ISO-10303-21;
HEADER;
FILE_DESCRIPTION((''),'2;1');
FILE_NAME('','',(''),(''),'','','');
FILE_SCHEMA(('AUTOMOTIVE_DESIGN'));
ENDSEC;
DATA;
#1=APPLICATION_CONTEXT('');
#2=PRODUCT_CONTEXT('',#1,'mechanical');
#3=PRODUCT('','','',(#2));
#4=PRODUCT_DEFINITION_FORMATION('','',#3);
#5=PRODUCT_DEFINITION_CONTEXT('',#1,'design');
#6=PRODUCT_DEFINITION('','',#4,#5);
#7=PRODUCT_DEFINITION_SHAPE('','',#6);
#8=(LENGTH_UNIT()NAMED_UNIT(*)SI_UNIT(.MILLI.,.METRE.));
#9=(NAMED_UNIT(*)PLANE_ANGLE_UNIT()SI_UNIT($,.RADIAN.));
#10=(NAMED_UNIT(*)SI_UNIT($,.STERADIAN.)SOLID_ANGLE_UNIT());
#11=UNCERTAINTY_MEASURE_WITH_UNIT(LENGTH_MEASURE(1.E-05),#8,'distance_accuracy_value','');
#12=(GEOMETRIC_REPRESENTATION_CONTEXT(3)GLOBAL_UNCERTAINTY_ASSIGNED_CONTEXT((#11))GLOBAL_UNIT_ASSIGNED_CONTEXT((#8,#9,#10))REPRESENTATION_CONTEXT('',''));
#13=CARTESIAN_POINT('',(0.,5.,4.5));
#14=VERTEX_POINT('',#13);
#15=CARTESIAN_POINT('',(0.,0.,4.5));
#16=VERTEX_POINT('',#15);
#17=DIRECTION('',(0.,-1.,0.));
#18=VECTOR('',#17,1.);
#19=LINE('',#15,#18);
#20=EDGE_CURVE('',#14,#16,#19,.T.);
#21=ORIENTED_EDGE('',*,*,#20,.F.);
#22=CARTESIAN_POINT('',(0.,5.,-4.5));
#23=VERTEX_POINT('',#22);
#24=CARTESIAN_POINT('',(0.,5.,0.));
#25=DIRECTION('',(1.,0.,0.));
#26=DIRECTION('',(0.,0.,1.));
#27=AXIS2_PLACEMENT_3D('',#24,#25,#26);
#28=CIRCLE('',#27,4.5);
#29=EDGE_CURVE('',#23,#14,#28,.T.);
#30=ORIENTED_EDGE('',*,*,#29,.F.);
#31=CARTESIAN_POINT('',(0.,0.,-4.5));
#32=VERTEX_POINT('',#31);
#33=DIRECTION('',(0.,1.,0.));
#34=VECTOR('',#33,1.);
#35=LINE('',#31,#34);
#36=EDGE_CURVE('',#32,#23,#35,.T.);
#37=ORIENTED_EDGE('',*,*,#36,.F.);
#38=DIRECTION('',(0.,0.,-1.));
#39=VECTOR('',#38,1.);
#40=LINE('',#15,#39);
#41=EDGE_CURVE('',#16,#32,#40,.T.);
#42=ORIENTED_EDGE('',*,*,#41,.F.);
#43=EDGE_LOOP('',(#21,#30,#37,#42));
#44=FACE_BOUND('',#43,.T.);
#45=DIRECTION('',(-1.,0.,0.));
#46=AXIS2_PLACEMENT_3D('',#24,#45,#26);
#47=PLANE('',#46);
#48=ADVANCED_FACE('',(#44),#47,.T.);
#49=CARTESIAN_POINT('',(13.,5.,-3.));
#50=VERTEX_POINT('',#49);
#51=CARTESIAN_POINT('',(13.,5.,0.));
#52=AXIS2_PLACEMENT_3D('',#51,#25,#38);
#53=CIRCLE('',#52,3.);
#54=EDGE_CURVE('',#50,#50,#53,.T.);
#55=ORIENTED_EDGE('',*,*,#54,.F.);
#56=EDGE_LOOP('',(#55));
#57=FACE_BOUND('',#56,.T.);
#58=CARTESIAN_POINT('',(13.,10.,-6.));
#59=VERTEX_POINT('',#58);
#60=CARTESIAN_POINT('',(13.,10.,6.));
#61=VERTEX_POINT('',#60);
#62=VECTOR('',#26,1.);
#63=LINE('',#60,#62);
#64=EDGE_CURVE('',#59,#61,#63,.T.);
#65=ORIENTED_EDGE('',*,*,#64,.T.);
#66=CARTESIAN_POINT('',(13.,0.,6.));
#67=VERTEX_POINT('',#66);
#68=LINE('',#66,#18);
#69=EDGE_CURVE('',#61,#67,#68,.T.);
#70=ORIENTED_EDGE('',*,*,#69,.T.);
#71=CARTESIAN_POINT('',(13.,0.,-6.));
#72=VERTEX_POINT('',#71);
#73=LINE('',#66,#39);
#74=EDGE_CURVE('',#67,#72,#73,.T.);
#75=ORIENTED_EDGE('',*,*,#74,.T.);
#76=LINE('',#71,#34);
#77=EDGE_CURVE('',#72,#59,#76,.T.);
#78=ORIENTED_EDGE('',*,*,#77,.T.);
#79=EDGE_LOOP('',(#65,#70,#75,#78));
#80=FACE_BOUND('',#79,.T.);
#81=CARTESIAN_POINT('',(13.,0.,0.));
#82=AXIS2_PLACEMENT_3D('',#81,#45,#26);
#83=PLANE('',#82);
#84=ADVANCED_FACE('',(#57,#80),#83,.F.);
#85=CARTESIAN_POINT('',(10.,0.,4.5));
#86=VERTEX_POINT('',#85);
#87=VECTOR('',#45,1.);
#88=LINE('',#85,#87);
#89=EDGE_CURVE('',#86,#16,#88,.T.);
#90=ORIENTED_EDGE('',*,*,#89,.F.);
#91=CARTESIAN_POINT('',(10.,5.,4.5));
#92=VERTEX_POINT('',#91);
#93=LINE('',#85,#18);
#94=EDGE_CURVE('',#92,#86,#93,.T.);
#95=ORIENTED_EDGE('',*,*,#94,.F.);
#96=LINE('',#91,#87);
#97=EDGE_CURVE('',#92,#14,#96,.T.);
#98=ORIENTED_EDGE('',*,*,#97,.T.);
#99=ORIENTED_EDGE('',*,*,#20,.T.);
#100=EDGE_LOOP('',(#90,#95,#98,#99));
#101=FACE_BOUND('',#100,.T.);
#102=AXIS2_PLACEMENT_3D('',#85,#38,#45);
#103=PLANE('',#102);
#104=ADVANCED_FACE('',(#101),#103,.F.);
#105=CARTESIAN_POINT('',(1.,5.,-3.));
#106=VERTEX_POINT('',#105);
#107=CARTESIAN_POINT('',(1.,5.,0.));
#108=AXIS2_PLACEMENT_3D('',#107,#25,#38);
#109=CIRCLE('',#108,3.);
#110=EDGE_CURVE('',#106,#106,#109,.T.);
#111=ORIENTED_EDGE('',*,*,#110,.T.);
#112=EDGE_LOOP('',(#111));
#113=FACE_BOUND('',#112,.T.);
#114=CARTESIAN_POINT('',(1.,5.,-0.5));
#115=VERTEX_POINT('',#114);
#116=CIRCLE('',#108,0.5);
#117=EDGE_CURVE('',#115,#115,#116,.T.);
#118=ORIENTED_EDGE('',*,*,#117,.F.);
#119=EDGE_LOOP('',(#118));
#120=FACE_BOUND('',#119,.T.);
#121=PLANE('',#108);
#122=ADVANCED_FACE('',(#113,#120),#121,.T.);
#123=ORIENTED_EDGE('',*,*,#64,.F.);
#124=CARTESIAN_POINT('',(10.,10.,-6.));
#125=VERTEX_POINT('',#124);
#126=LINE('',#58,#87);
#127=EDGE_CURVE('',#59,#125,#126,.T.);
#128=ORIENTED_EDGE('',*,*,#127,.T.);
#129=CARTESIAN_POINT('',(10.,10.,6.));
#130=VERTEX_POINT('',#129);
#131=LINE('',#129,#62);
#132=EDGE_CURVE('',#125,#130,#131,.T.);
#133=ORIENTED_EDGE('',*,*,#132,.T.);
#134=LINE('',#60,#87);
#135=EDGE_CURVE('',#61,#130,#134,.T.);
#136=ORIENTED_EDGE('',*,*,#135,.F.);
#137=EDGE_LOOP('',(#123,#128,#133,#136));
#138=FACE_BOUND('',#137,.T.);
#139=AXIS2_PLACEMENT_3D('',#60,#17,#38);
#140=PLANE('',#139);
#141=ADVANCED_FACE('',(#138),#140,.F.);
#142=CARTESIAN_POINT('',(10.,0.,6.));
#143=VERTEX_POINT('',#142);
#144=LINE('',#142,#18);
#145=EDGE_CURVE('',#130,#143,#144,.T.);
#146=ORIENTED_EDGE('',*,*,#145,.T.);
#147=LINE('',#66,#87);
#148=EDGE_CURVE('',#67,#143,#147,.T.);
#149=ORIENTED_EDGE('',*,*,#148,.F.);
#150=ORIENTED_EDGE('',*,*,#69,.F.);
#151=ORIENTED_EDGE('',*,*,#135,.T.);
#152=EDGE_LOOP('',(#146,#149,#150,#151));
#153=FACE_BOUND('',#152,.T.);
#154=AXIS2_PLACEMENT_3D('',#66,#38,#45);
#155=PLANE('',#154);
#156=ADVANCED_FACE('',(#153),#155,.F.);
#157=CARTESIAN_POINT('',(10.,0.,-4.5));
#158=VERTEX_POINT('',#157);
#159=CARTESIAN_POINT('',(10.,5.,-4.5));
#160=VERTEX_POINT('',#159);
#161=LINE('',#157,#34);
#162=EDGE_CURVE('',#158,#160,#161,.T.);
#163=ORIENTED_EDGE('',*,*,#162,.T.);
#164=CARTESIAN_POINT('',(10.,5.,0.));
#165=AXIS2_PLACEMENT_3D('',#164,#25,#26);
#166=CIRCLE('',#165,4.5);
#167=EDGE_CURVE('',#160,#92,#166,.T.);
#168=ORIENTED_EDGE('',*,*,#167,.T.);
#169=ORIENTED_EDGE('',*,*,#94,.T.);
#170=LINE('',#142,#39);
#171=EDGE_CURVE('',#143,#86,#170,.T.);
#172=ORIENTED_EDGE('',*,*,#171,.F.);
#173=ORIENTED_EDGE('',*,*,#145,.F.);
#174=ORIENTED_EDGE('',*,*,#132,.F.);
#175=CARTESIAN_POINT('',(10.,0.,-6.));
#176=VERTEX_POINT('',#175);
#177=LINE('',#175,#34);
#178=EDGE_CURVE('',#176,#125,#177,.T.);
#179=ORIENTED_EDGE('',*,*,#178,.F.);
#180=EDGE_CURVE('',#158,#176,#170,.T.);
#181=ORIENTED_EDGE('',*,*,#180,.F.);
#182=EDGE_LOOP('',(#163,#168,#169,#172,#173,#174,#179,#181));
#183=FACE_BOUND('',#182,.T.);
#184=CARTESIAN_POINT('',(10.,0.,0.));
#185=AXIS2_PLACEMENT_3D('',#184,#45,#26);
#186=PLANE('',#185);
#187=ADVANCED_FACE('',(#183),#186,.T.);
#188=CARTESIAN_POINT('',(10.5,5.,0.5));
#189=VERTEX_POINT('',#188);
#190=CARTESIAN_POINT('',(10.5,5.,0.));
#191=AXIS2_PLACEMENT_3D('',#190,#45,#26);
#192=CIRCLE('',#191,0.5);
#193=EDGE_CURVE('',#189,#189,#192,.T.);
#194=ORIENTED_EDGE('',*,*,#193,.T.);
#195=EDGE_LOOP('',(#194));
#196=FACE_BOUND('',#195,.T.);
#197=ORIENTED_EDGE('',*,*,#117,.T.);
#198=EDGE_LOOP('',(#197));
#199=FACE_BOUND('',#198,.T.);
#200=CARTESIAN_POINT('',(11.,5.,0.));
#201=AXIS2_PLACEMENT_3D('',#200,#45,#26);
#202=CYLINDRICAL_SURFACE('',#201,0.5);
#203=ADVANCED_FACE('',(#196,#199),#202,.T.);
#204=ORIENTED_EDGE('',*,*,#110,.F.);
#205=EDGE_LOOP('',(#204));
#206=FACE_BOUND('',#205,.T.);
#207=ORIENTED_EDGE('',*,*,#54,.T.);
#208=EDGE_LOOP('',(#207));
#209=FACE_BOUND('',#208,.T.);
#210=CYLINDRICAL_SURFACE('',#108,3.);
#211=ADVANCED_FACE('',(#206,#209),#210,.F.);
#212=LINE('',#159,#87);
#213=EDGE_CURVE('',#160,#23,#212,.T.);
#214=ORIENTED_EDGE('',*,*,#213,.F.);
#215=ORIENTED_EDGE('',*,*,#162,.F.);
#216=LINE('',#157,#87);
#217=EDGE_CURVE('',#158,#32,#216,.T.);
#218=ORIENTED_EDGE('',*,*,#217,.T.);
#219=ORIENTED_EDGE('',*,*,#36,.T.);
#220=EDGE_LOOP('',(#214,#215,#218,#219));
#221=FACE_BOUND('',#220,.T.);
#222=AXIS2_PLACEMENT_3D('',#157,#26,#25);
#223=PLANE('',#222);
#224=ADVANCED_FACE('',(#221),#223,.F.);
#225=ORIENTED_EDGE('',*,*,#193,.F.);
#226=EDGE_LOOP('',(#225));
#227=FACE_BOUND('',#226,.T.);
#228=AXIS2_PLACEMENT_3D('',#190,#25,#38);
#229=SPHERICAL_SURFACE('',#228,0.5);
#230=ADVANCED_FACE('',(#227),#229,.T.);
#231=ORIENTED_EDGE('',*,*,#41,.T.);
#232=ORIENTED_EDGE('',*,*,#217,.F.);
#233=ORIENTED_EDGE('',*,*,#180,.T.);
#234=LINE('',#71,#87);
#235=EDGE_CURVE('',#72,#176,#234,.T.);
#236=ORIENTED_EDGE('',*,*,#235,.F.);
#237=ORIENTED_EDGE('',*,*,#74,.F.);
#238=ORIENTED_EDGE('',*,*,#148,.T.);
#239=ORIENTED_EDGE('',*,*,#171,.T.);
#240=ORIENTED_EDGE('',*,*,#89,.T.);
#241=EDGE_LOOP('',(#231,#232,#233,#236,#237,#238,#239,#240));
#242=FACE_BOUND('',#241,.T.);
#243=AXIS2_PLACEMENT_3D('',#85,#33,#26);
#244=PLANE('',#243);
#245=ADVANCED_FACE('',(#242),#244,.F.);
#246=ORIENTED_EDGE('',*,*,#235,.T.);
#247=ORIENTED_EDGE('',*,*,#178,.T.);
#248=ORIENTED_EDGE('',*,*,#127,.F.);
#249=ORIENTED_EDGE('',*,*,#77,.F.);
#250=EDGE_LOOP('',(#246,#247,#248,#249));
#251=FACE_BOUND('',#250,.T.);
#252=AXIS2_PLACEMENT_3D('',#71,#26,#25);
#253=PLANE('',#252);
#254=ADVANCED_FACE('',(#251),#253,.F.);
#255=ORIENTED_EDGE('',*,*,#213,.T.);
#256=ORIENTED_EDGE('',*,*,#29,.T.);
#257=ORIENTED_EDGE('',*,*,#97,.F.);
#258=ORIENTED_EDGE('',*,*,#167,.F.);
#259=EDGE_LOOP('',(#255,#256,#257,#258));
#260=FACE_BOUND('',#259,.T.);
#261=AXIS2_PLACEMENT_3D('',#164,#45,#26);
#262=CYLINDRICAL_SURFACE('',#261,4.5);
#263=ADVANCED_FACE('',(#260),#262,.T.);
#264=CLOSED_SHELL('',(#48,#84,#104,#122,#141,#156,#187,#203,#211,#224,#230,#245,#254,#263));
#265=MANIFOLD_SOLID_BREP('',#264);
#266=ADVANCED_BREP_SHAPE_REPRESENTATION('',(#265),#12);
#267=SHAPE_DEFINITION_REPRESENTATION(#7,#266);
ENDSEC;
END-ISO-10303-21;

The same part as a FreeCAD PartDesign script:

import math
import FreeCAD as App
import Part
import Sketcher

V = App.Vector
Q = App.Units.Quantity


def edges_at(feature, points):
    """Names of the edges that pass closest to the given points."""
    edges = feature.Shape.Edges
    near = lambda p: min(range(len(edges)), key=lambda i: edges[i].distToShape(Part.Vertex(*p))[0])
    return sorted({f"Edge{near(p) + 1}" for p in points})

doc = App.newDocument("Part")
body = doc.addObject("PartDesign::Body", "Body")

sketch1 = body.newObject("Sketcher::SketchObject", "Sketch")
sketch1.AttachmentSupport = (doc.getObject("YZ_Plane"), [""])
sketch1.MapMode = "FlatFace"
sketch1.addGeometry([
    Part.LineSegment(V(0, 4.5, 0), V(0, -4.5, 0)),
    Part.LineSegment(V(0, -4.5, 0), V(5, -4.5, 0)),
    Part.ArcOfCircle(Part.Circle(V(5, 0, 0), V(0, 0, 1), 4.5), math.radians(-90), math.radians(90)),
    Part.LineSegment(V(5, 4.5, 0), V(0, 4.5, 0)),
], False)
sketch1.addConstraint([
    Sketcher.Constraint("Coincident", 0, 2, 1, 1),
    Sketcher.Constraint("Tangent", 1, 2, 2, 1),
    Sketcher.Constraint("Tangent", 2, 2, 3, 1),
    Sketcher.Constraint("Coincident", 3, 2, 0, 1),
    Sketcher.Constraint("Vertical", 0),
    Sketcher.Constraint("Horizontal", 1),
    Sketcher.Constraint("Horizontal", 3),
    Sketcher.Constraint("Symmetric", 0, 2, 3, 2, -1, 1),
    Sketcher.Constraint("Radius", 2, Q("4.5 mm")),
    Sketcher.Constraint("DistanceX", 1, 1, 1, 2, Q("5 mm")),
])
pad1 = body.newObject("PartDesign::Pad", "Pad")
pad1.Profile = sketch1
pad1.Length = 10

sketch2 = body.newObject("Sketcher::SketchObject", "Sketch001")
sketch2.AttachmentSupport = (doc.getObject("YZ_Plane"), [""])
sketch2.MapMode = "FlatFace"
sketch2.AttachmentOffset = App.Placement(V(0, 0, 10), App.Rotation())
sketch2.addGeometry([
    Part.LineSegment(V(10, 6, 0), V(0, 6, 0)),
    Part.LineSegment(V(0, 6, 0), V(0, -6, 0)),
    Part.LineSegment(V(0, -6, 0), V(10, -6, 0)),
    Part.LineSegment(V(10, -6, 0), V(10, 6, 0)),
], False)
sketch2.addConstraint([
    Sketcher.Constraint("Coincident", 0, 2, 1, 1),
    Sketcher.Constraint("Coincident", 1, 2, 2, 1),
    Sketcher.Constraint("Coincident", 2, 2, 3, 1),
    Sketcher.Constraint("Coincident", 3, 2, 0, 1),
    Sketcher.Constraint("Horizontal", 0),
    Sketcher.Constraint("Vertical", 1),
    Sketcher.Constraint("Horizontal", 2),
    Sketcher.Constraint("Vertical", 3),
    Sketcher.Constraint("Symmetric", 0, 2, 1, 2, -1, 1),
    Sketcher.Constraint("DistanceX", 0, 2, 0, 1, Q("10 mm")),
    Sketcher.Constraint("DistanceY", 1, 2, 1, 1, Q("12 mm")),
])
pad2 = body.newObject("PartDesign::Pad", "Pad001")
pad2.Profile = sketch2
pad2.Length = 3

sketch3 = body.newObject("Sketcher::SketchObject", "Sketch002")
sketch3.AttachmentSupport = (doc.getObject("YZ_Plane"), [""])
sketch3.MapMode = "FlatFace"
sketch3.AttachmentOffset = App.Placement(V(0, 0, 13), App.Rotation())
sketch3.addGeometry(Part.Circle(V(5, 0, 0), V(0, 0, 1), 3), False)
sketch3.addConstraint([
    Sketcher.Constraint("PointOnObject", 0, 3, -1),
    Sketcher.Constraint("Diameter", 0, Q("6 mm")),
    Sketcher.Constraint("DistanceX", -1, 1, 0, 3, Q("5 mm")),
])
pocket1 = body.newObject("PartDesign::Pocket", "Pocket")
pocket1.Profile = sketch3
pocket1.Length = 12

sketch4 = body.newObject("Sketcher::SketchObject", "Sketch003")
sketch4.AttachmentSupport = (doc.getObject("YZ_Plane"), [""])
sketch4.MapMode = "FlatFace"
sketch4.AttachmentOffset = App.Placement(V(0, 0, 1), App.Rotation())
sketch4.addGeometry(Part.Circle(V(5, 0, 0), V(0, 0, 1), 0.5), False)
sketch4.addConstraint([
    Sketcher.Constraint("PointOnObject", 0, 3, -1),
    Sketcher.Constraint("Diameter", 0, Q("1 mm")),
    Sketcher.Constraint("DistanceX", -1, 1, 0, 3, Q("5 mm")),
])
pad3 = body.newObject("PartDesign::Pad", "Pad002")
pad3.Profile = sketch4
pad3.Length = 10
doc.recompute()

fillet = body.newObject("PartDesign::Fillet", "Fillet")
fillet.Base = (pad3, edges_at(pad3, [(11, 5, 0.5)]))
fillet.Radius = 0.5

doc.recompute()
